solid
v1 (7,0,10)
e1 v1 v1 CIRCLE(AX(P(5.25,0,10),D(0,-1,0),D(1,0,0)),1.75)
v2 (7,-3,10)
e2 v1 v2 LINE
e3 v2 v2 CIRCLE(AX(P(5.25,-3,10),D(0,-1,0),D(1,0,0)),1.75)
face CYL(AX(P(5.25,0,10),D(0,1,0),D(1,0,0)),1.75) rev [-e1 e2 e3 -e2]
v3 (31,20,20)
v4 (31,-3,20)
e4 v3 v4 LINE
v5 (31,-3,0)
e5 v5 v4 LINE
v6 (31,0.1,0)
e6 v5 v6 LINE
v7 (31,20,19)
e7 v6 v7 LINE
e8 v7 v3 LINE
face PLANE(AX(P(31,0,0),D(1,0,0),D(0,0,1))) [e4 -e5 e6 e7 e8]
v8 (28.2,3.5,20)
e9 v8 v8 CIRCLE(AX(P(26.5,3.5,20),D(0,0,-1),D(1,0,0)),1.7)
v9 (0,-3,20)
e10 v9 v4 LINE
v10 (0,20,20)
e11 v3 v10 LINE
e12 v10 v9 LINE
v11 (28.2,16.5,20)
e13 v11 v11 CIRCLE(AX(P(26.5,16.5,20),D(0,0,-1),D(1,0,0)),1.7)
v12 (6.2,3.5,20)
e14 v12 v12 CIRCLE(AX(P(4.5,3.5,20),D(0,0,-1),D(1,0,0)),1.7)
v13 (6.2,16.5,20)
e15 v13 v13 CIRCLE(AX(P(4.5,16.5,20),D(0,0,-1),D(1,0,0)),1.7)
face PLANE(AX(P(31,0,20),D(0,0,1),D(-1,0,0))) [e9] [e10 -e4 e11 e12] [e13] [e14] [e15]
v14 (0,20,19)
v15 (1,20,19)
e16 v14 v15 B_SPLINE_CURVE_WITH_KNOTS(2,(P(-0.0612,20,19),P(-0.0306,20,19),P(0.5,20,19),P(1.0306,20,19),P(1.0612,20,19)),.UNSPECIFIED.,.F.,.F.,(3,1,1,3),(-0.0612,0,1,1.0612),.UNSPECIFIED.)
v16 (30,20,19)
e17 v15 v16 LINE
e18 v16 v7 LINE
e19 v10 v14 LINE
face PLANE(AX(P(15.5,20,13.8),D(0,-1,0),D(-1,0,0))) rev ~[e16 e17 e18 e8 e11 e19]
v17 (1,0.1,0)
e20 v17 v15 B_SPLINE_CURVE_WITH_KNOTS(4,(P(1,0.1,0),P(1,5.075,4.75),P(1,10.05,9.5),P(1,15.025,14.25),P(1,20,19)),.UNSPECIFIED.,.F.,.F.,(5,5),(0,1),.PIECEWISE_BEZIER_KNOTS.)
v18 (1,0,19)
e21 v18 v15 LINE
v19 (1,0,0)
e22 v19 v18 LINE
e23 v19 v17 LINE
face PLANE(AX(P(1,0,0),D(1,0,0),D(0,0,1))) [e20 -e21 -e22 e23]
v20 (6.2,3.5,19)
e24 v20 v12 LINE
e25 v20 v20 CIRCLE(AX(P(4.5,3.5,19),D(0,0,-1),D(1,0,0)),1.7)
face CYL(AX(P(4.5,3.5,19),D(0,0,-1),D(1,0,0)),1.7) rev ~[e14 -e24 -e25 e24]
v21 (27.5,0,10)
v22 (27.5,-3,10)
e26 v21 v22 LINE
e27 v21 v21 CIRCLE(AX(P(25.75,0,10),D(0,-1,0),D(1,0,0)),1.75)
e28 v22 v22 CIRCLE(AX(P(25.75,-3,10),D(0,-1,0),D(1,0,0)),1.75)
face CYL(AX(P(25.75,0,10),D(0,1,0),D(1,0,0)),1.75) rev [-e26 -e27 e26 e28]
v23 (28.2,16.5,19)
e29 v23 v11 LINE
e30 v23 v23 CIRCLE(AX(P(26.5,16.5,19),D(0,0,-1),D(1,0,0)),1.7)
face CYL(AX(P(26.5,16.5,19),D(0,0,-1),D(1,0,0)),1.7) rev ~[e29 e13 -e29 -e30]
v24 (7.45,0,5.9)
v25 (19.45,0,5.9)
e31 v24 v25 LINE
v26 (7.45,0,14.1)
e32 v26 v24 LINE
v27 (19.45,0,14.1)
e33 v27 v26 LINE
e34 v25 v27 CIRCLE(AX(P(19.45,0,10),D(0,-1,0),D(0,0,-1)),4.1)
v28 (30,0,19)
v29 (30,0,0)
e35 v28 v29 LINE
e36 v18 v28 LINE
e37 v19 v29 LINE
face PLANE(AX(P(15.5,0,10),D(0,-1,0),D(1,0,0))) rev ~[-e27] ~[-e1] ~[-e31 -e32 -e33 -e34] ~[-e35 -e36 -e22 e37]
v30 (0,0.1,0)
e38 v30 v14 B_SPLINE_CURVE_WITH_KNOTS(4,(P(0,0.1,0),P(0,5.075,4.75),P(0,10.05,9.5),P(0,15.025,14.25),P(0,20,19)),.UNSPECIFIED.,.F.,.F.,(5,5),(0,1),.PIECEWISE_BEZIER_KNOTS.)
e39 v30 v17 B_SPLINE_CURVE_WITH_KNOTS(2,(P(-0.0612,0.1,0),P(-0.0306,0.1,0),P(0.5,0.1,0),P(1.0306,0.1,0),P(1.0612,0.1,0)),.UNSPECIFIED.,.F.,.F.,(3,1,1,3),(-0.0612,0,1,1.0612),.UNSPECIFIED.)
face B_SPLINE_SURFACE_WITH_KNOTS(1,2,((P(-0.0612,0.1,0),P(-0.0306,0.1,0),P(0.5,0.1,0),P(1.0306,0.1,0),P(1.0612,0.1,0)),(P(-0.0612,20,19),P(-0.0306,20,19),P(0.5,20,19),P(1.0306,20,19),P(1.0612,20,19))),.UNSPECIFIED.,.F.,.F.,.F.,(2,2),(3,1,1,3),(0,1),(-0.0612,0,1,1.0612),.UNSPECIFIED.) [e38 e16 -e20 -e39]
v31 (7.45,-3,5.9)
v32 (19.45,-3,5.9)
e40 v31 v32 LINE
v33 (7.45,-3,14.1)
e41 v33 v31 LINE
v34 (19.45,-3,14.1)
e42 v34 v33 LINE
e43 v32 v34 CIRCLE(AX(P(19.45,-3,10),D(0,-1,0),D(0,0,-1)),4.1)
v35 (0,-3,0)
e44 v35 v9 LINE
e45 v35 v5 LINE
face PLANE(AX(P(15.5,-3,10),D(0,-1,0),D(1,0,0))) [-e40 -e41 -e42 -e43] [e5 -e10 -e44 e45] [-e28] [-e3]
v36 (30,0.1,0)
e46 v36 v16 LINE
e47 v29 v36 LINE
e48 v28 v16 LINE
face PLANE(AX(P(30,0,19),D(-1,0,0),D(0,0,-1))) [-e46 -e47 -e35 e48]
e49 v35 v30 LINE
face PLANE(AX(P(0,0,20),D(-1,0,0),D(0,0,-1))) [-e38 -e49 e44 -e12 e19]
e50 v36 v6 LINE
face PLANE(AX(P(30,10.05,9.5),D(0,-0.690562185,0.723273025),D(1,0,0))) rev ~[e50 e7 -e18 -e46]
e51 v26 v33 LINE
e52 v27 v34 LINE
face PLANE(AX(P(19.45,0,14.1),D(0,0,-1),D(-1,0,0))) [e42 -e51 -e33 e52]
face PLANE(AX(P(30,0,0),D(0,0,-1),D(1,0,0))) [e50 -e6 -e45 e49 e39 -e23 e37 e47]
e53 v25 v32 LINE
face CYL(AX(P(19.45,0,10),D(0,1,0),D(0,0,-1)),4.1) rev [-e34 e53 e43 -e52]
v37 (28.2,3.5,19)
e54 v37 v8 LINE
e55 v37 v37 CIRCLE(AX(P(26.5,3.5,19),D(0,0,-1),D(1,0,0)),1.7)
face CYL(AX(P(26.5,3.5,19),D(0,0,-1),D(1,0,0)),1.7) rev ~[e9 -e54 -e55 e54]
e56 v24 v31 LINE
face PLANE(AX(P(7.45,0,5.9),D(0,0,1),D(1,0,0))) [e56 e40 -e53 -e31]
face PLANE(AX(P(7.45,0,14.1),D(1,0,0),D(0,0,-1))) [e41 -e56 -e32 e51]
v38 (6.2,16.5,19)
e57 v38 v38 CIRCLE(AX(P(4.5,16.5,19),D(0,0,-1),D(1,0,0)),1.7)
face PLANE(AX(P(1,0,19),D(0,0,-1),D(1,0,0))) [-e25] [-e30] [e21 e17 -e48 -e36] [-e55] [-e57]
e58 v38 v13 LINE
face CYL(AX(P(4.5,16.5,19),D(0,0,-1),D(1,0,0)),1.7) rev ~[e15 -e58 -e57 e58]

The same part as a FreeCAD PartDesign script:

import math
import FreeCAD as App
import Part
import Sketcher
from FreeCAD import Vector


def edges_at(feature, points):
    """Names of the edges that pass closest to the given points."""
    edges = feature.Shape.Edges
    near = lambda p: min(range(len(edges)), key=lambda i: edges[i].distToShape(Part.Vertex(*p))[0])
    return sorted({f"Edge{near(p) + 1}" for p in points})

doc = App.newDocument("Part")
body = doc.addObject("PartDesign::Body", "Body")

# Sketch on XZ plane
sketch1 = body.newObject("Sketcher::SketchObject", "Sketch")
sketch1.AttachmentSupport = (doc.getObject("XZ_Plane"), [""])
sketch1.MapMode = "FlatFace"
sketch1.addGeometry([
    Part.LineSegment(Vector(0, 20, 0), Vector(0, 0, 0)),  # 0
    Part.LineSegment(Vector(0, 0, 0), Vector(31, 0, 0)),  # 1
    Part.LineSegment(Vector(31, 0, 0), Vector(31, 20, 0)),  # 2
    Part.LineSegment(Vector(31, 20, 0), Vector(0, 20, 0)),  # 3
    Part.Circle(Vector(5.25, 10, 0), Vector(0, 0, 1), 1.75),  # 4
    Part.ArcOfCircle(Part.Circle(Vector(19.45, 10, 0), Vector(0, 0, 1), 4.1), math.radians(-90), math.radians(90)),  # 5
    Part.LineSegment(Vector(19.45, 5.9, 0), Vector(7.45, 5.9, 0)),  # 6
    Part.LineSegment(Vector(7.45, 5.9, 0), Vector(7.45, 14.1, 0)),  # 7
    Part.LineSegment(Vector(7.45, 14.1, 0), Vector(19.45, 14.1, 0)),  # 8
    Part.Circle(Vector(25.75, 10, 0), Vector(0, 0, 1), 1.75),  # 9
], False)
sketch1.addConstraint([
    Sketcher.Constraint("Coincident", 0, 2, 1, 1),
    Sketcher.Constraint("Coincident", 1, 2, 2, 1),
    Sketcher.Constraint("Coincident", 2, 2, 3, 1),
    Sketcher.Constraint("Coincident", 3, 2, 0, 1),
    Sketcher.Constraint("Tangent", 5, 1, 6, 1),
    Sketcher.Constraint("Coincident", 6, 2, 7, 1),
    Sketcher.Constraint("Coincident", 7, 2, 8, 1),
    Sketcher.Constraint("Tangent", 8, 2, 5, 2),
    Sketcher.Constraint("Vertical", 0),
    Sketcher.Constraint("Horizontal", 1),
    Sketcher.Constraint("Vertical", 2),
    Sketcher.Constraint("Horizontal", 3),
    Sketcher.Constraint("Horizontal", 6),
    Sketcher.Constraint("Vertical", 7),
    Sketcher.Constraint("Horizontal", 8),
    Sketcher.Constraint("Coincident", 0, 2, -1, 1),
    Sketcher.Constraint("Equal", 4, 9),
    Sketcher.Constraint("Horizontal", 4, 3, 5, 3),
    Sketcher.Constraint("Horizontal", 5, 3, 9, 3),
    Sketcher.Constraint("Diameter", 4, 3.5),
    Sketcher.Constraint("Radius", 5, 4.1),
    Sketcher.Constraint("DistanceX", 1, 1, 1, 2, 31.0),
    Sketcher.Constraint("DistanceX", 6, 2, 6, 1, 12.0),
    Sketcher.Constraint("DistanceY", 0, 2, 0, 1, 20.0),
    Sketcher.Constraint("DistanceY", -1, 1, 4, 3, 10.0),
    Sketcher.Constraint("DistanceX", 4, 3, 5, 3, 14.2),
    Sketcher.Constraint("DistanceX", 5, 3, 9, 3, 6.3),
    Sketcher.Constraint("DistanceX", -1, 1, 4, 3, 5.25),
])
pad1 = body.newObject("PartDesign::Pad", "Pad")
pad1.Profile = sketch1
pad1.Length = 3

# Sketch on XZ plane
sketch2 = body.newObject("Sketcher::SketchObject", "Sketch001")
sketch2.AttachmentSupport = (doc.getObject("XZ_Plane"), [""])
sketch2.MapMode = "FlatFace"
sketch2.addGeometry([
    Part.LineSegment(Vector(31, 20, 0), Vector(31, 0, 0)),  # 0
    Part.LineSegment(Vector(31, 0, 0), Vector(30, 0, 0)),  # 1
    Part.LineSegment(Vector(30, 0, 0), Vector(30, 19, 0)),  # 2
    Part.LineSegment(Vector(30, 19, 0), Vector(1, 19, 0)),  # 3
    Part.LineSegment(Vector(1, 19, 0), Vector(1, 0, 0)),  # 4
    Part.LineSegment(Vector(1, 0, 0), Vector(0, 0, 0)),  # 5
    Part.LineSegment(Vector(0, 0, 0), Vector(0, 20, 0)),  # 6
    Part.LineSegment(Vector(0, 20, 0), Vector(31, 20, 0)),  # 7
], False)
sketch2.addConstraint([
    Sketcher.Constraint("Coincident", 0, 2, 1, 1),
    Sketcher.Constraint("Coincident", 1, 2, 2, 1),
    Sketcher.Constraint("Coincident", 2, 2, 3, 1),
    Sketcher.Constraint("Coincident", 3, 2, 4, 1),
    Sketcher.Constraint("Coincident", 4, 2, 5, 1),
    Sketcher.Constraint("Coincident", 5, 2, 6, 1),
    Sketcher.Constraint("Coincident", 6, 2, 7, 1),
    Sketcher.Constraint("Coincident", 7, 2, 0, 1),
    Sketcher.Constraint("Vertical", 0),
    Sketcher.Constraint("Horizontal", 1),
    Sketcher.Constraint("Vertical", 2),
    Sketcher.Constraint("Horizontal", 3),
    Sketcher.Constraint("Vertical", 4),
    Sketcher.Constraint("Horizontal", 5),
    Sketcher.Constraint("Vertical", 6),
    Sketcher.Constraint("Horizontal", 7),
    Sketcher.Constraint("Coincident", 5, 2, -1, 1),
    Sketcher.Constraint("PointOnObject", 0, 2, -1),
    Sketcher.Constraint("Equal", 1, 5),
    Sketcher.Constraint("DistanceX", 1, 2, 1, 1, 1.0),
    Sketcher.Constraint("DistanceX", 3, 2, 3, 1, 29.0),
    Sketcher.Constraint("DistanceY", 0, 2, 0, 1, 20.0),
    Sketcher.Constraint("DistanceY", 2, 1, 2, 2, 19.0),
])
pad2 = body.newObject("PartDesign::Pad", "Pad001")
pad2.Profile = sketch2
pad2.Length = 20
pad2.Reversed = True

# Sketch on XY plane
sketch3 = body.newObject("Sketcher::SketchObject", "Sketch002")
sketch3.AttachmentSupport = (doc.getObject("XY_Plane"), [""])
sketch3.MapMode = "FlatFace"
sketch3.AttachmentOffset = App.Placement(Vector(0, 0, 19), App.Rotation())
sketch3.addGeometry([
    Part.Circle(Vector(4.5, 3.5, 0), Vector(0, 0, 1), 1.7),
    Part.Circle(Vector(26.5, 3.5, 0), Vector(0, 0, 1), 1.7),
    Part.Circle(Vector(26.5, 16.5, 0), Vector(0, 0, 1), 1.7),
    Part.Circle(Vector(4.5, 16.5, 0), Vector(0, 0, 1), 1.7),
], False)
sketch3.addConstraint([
    Sketcher.Constraint("Equal", 0, 1),
    Sketcher.Constraint("Equal", 1, 2),
    Sketcher.Constraint("Equal", 2, 3),
    Sketcher.Constraint("Horizontal", 0, 3, 1, 3),
    Sketcher.Constraint("Horizontal", 2, 3, 3, 3),
    Sketcher.Constraint("Vertical", 1, 3, 2, 3),
    Sketcher.Constraint("Vertical", 0, 3, 3, 3),
    Sketcher.Constraint("Diameter", 0, 3.4),
    Sketcher.Constraint("DistanceX", 0, 3, 1, 3, 22.0),
    Sketcher.Constraint("DistanceY", 1, 3, 2, 3, 13.0),
    Sketcher.Constraint("DistanceX", -1, 1, 0, 3, 4.5),
    Sketcher.Constraint("DistanceY", -1, 1, 0, 3, 3.5),
])
pocket1 = body.newObject("PartDesign::Pocket", "Pocket")
pocket1.Profile = sketch3
pocket1.Length = 25
pocket1.Reversed = True
doc.recompute()

chamfer = body.newObject("PartDesign::Chamfer", "Chamfer")
chamfer.Base = (pocket1, edges_at(pocket1, [(30.5, 20, 0)]))
chamfer.ChamferType = "Two distances"
chamfer.Size = 19.9
chamfer.Size2 = 19
doc.recompute()

chamfer2 = body.newObject("PartDesign::Chamfer", "Chamfer001")
chamfer2.Base = (chamfer, edges_at(chamfer, [(0.5, 20, 0)]))
chamfer2.ChamferType = "Two distances"
chamfer2.Size = 19.9
chamfer2.Size2 = 19

doc.recompute()
